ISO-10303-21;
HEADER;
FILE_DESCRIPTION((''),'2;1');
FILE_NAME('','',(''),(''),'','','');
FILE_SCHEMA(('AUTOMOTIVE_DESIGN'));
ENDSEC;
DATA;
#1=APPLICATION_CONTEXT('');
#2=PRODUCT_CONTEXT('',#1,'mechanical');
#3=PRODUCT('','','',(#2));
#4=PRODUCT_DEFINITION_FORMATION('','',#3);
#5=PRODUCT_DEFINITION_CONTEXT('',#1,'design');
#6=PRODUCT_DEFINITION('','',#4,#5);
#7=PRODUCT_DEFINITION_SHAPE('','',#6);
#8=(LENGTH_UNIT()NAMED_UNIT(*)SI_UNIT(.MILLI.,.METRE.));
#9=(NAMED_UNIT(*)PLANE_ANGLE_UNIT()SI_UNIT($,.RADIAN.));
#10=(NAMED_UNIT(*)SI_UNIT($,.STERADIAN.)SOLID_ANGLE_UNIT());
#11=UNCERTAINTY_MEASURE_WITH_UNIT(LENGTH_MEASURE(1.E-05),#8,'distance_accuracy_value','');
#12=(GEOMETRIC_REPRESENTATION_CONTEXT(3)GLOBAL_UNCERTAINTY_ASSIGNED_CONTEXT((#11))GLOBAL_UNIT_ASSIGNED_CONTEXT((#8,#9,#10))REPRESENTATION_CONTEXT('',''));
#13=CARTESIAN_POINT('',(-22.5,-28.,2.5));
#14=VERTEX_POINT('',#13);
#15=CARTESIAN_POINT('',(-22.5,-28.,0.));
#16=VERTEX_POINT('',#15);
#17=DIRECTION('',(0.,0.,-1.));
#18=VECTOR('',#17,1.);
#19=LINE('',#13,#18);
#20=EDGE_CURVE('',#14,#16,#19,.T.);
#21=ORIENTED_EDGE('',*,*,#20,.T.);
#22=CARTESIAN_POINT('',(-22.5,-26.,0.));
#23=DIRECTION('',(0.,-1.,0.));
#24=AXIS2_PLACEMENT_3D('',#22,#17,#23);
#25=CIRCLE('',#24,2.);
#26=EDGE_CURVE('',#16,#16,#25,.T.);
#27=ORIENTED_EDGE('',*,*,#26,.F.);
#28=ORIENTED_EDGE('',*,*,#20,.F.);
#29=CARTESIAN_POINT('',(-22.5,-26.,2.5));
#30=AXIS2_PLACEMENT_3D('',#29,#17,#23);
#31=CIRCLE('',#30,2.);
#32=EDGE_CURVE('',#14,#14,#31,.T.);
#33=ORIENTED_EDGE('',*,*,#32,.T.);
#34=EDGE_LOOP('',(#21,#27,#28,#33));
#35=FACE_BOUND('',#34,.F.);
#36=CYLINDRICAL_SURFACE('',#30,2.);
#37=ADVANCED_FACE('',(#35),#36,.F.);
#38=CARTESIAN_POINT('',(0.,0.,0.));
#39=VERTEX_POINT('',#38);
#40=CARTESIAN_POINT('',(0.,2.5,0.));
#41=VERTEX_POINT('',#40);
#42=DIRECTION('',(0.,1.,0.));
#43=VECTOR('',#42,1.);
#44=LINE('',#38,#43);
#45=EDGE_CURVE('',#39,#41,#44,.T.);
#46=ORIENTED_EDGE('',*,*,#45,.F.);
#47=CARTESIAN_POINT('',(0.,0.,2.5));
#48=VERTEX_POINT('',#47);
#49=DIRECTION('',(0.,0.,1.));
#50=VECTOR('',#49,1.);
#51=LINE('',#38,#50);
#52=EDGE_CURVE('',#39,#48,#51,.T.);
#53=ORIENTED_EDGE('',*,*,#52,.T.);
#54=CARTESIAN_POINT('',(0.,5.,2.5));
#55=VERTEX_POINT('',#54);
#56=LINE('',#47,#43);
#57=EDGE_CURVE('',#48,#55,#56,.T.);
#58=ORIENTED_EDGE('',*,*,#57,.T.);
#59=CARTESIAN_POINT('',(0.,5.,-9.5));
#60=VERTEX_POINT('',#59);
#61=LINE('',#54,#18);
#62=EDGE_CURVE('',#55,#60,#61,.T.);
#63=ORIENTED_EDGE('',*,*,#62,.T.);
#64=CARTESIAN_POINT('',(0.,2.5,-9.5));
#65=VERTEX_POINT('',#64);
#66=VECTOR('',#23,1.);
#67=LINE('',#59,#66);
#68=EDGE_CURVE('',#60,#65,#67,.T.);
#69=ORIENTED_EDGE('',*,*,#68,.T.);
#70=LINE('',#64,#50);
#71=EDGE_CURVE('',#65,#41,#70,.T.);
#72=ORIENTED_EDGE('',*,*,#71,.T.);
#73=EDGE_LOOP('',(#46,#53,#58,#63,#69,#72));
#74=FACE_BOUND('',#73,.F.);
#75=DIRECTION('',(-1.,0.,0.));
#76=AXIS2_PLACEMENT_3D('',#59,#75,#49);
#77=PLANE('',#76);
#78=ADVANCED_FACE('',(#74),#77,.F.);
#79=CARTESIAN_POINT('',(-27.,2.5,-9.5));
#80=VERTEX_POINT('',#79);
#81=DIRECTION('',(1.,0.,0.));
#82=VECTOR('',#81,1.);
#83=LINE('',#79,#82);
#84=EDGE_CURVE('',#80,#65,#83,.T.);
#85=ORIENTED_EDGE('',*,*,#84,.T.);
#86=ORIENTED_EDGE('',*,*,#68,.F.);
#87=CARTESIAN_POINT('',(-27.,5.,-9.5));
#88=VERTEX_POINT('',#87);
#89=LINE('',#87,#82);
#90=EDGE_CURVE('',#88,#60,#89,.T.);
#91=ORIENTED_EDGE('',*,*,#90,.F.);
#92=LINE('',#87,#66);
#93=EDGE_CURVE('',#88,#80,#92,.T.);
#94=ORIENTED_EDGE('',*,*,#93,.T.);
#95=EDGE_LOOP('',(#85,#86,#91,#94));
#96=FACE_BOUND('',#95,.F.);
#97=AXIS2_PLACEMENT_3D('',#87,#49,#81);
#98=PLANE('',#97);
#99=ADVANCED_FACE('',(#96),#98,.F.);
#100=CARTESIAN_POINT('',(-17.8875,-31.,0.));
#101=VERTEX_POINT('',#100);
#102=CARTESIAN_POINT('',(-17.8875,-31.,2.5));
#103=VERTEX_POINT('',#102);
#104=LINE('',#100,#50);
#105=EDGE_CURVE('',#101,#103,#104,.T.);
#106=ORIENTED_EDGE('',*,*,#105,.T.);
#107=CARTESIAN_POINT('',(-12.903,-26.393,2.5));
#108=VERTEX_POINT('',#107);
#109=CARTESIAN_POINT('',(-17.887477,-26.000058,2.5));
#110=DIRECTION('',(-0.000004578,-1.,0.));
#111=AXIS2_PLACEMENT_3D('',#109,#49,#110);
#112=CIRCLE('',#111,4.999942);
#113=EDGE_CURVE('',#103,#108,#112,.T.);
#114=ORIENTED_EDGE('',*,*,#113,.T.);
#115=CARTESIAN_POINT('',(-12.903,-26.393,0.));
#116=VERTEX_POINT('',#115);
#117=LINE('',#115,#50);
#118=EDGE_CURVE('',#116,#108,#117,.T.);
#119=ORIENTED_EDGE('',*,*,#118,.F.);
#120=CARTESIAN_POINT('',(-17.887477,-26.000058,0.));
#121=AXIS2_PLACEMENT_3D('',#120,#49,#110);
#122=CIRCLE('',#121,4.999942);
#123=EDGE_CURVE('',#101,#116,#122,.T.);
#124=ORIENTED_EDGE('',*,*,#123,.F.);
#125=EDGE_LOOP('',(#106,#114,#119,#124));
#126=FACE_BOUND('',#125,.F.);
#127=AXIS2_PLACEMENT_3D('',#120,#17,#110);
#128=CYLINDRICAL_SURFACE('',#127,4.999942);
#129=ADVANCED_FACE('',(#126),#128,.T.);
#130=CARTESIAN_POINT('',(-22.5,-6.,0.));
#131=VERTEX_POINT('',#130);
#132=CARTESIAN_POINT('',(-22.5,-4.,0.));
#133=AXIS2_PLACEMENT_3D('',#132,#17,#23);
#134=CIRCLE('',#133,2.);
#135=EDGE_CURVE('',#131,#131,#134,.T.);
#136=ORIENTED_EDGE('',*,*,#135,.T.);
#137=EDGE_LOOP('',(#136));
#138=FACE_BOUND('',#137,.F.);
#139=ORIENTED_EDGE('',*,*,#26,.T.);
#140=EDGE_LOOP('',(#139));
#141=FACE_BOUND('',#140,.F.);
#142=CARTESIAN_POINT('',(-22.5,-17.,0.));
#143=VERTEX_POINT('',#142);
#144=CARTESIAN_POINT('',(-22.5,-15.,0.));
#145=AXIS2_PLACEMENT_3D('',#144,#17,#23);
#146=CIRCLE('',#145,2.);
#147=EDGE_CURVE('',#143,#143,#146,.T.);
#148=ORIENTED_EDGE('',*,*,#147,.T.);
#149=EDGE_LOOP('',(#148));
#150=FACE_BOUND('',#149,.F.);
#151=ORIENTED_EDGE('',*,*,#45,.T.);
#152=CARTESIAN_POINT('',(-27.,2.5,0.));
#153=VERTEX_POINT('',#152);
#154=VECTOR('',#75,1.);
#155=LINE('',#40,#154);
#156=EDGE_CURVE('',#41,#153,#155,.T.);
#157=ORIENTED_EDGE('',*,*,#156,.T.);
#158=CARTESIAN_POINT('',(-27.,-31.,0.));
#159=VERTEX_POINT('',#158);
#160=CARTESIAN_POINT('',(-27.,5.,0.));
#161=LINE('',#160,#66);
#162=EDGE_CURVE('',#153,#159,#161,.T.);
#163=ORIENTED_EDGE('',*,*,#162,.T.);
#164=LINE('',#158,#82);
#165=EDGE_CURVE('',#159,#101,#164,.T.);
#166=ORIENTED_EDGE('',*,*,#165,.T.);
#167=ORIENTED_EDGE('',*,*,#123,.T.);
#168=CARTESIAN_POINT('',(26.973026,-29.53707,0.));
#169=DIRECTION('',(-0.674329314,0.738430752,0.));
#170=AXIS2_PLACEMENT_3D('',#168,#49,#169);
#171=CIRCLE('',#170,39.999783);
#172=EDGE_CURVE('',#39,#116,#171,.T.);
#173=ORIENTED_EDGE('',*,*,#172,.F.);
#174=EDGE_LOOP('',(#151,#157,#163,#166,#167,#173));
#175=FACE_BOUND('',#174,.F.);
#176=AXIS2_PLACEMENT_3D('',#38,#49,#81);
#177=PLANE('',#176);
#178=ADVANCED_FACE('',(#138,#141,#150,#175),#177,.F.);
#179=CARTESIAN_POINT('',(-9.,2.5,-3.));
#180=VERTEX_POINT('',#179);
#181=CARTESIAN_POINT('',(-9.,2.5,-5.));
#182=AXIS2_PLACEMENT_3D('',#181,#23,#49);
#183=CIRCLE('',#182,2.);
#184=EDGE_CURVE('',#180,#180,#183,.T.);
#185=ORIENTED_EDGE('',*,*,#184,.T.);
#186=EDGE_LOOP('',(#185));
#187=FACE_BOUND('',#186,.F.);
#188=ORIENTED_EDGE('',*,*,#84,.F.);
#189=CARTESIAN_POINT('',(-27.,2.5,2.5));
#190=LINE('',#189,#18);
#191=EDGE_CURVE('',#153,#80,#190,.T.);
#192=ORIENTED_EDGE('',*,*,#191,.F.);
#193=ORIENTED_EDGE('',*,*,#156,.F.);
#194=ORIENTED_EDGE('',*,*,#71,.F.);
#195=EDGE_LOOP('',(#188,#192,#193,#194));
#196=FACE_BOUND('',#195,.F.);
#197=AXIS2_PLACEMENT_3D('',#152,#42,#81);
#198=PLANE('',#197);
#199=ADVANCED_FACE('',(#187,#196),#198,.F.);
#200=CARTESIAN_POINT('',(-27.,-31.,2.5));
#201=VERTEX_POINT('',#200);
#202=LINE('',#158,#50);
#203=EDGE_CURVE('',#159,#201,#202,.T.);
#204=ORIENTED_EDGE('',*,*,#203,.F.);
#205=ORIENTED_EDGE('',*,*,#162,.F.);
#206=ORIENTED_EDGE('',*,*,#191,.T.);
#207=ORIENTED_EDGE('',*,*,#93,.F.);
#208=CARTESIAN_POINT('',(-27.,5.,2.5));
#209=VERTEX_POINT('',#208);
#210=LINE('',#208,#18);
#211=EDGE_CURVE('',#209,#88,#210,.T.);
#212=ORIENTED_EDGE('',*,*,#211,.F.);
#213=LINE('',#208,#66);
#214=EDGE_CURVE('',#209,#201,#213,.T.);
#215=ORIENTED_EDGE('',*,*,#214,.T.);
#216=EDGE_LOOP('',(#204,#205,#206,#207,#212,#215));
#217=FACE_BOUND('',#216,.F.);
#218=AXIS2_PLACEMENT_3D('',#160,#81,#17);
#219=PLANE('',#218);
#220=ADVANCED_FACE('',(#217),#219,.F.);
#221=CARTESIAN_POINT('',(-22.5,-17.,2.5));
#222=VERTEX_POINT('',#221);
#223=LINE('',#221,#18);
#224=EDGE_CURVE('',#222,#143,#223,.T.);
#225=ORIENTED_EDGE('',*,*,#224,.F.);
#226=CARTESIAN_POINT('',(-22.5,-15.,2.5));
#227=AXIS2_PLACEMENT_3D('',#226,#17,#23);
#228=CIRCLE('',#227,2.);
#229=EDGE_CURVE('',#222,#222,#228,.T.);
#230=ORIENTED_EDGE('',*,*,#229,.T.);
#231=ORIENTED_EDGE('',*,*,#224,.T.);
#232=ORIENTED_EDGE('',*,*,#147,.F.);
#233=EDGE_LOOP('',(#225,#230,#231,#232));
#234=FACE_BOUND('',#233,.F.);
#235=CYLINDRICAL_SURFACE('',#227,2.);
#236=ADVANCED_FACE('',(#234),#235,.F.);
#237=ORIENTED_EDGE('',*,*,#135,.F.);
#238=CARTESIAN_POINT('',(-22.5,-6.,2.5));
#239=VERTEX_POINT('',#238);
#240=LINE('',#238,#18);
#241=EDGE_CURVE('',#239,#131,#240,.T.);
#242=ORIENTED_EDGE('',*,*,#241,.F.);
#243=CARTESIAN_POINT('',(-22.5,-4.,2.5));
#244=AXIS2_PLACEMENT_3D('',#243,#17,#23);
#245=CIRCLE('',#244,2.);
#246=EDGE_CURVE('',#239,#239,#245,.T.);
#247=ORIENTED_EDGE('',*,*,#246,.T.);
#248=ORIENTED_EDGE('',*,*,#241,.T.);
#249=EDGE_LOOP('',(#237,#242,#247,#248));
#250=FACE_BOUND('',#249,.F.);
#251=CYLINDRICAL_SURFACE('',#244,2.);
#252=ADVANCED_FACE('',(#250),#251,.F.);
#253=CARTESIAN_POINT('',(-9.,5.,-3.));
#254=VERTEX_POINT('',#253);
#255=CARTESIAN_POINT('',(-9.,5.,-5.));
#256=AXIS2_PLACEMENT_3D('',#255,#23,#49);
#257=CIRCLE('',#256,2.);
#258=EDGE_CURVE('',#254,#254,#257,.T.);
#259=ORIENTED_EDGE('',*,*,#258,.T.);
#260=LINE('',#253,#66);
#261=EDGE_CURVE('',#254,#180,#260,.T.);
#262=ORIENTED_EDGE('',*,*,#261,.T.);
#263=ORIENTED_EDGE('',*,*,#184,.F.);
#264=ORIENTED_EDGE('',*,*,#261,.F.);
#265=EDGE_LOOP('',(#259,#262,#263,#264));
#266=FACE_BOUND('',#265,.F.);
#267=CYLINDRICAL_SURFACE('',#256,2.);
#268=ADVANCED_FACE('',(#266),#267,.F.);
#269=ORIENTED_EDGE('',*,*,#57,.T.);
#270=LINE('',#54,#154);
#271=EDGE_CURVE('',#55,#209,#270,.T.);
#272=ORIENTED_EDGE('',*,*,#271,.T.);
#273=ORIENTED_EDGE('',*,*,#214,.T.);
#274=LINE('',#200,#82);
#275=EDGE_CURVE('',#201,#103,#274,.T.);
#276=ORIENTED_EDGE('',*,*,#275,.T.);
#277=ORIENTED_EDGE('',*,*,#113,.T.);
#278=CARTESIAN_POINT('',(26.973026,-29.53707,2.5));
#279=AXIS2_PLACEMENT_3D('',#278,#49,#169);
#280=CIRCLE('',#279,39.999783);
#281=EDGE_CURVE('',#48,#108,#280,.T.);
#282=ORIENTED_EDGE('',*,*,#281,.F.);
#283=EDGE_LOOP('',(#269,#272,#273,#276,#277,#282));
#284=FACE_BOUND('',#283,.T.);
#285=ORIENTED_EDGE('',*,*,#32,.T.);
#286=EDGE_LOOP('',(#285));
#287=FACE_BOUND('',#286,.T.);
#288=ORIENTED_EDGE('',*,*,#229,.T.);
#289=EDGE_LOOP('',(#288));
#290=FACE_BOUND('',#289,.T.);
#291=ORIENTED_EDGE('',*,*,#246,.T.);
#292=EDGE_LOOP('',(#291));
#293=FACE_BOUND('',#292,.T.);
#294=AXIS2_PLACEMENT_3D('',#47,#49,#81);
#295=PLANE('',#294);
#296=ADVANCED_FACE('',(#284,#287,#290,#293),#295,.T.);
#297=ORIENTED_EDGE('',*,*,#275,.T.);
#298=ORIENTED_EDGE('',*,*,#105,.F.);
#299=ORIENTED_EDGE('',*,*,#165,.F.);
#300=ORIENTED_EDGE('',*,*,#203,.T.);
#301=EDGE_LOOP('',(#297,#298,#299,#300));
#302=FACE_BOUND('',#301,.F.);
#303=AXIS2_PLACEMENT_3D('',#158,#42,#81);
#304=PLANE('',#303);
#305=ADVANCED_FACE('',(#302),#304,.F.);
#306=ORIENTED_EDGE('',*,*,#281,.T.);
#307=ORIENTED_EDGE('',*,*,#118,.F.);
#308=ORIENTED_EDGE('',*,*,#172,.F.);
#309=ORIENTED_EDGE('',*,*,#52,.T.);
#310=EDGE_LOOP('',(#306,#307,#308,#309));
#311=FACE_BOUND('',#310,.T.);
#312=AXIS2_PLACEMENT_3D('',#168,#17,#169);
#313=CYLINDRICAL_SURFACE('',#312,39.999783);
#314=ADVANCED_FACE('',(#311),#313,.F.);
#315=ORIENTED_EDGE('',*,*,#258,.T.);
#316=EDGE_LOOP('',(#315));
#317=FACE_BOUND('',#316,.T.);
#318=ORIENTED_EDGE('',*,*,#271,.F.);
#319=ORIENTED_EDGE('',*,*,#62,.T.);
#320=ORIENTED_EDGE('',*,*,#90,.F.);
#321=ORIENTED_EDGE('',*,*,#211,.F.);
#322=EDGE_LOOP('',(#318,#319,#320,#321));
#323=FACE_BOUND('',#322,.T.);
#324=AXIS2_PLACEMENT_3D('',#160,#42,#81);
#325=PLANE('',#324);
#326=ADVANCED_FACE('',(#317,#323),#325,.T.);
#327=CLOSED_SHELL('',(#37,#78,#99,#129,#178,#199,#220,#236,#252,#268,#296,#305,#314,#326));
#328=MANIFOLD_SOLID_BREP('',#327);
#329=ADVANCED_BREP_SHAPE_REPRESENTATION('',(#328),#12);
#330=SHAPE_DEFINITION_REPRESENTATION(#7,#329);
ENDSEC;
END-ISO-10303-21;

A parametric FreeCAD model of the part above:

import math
import FreeCAD as App
import Part
import Sketcher
Q = App.Units.Quantity


def add_polygon(sketch, points):
    """Adds a closed chain of lines whose ends are joined by coincident constraints."""
    first, n = sketch.GeometryCount, len(points)
    for a, b in zip(points, points[1:] + points[:1]):
        sketch.addGeometry(Part.LineSegment(App.Vector(*a, 0), App.Vector(*b, 0)), False)
    for i in range(n):
        sketch.addConstraint(Sketcher.Constraint("Coincident", first + i, 2, first + (i + 1) % n, 1))

doc = App.newDocument("Part")
params = doc.addObject("Spreadsheet::Sheet", "Params")
for row, (alias, value) in enumerate([
    ("sketch1_radius", "40 mm"),
    ("sketch1_radius2", "5 mm"),
    ("sketch1_width", "27 mm"),
    ("sketch1_height", "5 mm"),
    ("sketch1_height2", "36 mm"),
    ("pad1_length", "2.5 mm"),
    ("sketch2_diameter", "4 mm"),
    ("hole_diameter", "4 mm"),
    ("sketch3_diameter", "4 mm"),
    ("hole2_diameter", "4 mm"),
    ("sketch4_width", "27 mm"),
    ("sketch4_height", "9.5 mm"),
    ("pad2_length", "2.5 mm"),
    ("sketch5_diameter", "4 mm"),
    ("hole3_diameter", "4 mm"),
], start=1):
    params.set(f"A{row}", alias)
    params.set(f"B{row}", "=" + value)
    params.setAlias(f"B{row}", alias)

body = doc.addObject("PartDesign::Body", "Body")

# Sketch on XY plane
sketch1 = body.newObject("Sketcher::SketchObject", "Sketch")
sketch1.AttachmentSupport = (doc.getObject("XY_Plane"), [""])
sketch1.MapMode = "FlatFace"
sketch1.addGeometry([
    Part.ArcOfCircle(Part.Circle(App.Vector(26.9732, -29.5372, 0), App.Vector(0, 0, 1), 39.999996), math.radians(132.402147), math.radians(175.491611)),  # 0
    Part.LineSegment(App.Vector(0, 0, 0), App.Vector(0, 5, 0)),  # 1
    Part.LineSegment(App.Vector(0, 5, 0), App.Vector(-27, 5, 0)),  # 2
    Part.LineSegment(App.Vector(-27, 5, 0), App.Vector(-27, -31, 0)),  # 3
    Part.LineSegment(App.Vector(-27, -31, 0), App.Vector(-17.8875, -31, 0)),  # 4
    Part.ArcOfCircle(Part.Circle(App.Vector(-17.8875, -26, 0), App.Vector(0, 0, 1), 5), math.radians(-90), math.radians(-4.508126)),  # 5
], False)
sketch1.addConstraint([
    Sketcher.Constraint("Coincident", 0, 1, 1, 1),
    Sketcher.Constraint("Coincident", 1, 2, 2, 1),
    Sketcher.Constraint("Coincident", 2, 2, 3, 1),
    Sketcher.Constraint("Coincident", 3, 2, 4, 1),
    Sketcher.Constraint("Tangent", 4, 2, 5, 1),
    Sketcher.Constraint("Tangent", 5, 2, 0, 2),
    Sketcher.Constraint("Vertical", 1),
    Sketcher.Constraint("Horizontal", 2),
    Sketcher.Constraint("Vertical", 3),
    Sketcher.Constraint("Horizontal", 4),
    Sketcher.Constraint("Coincident", 0, 1, -1, 1),
    Sketcher.Constraint("Radius", 0, Q("40 mm")),
    Sketcher.Constraint("Radius", 5, Q("5 mm")),
    Sketcher.Constraint("DistanceX", 2, 2, 2, 1, Q("27 mm")),
    Sketcher.Constraint("DistanceY", 1, 1, 1, 2, Q("5 mm")),
    Sketcher.Constraint("DistanceY", 3, 2, 3, 1, Q("36 mm")),
    Sketcher.Constraint("DistanceX", 4, 1, 4, 2, Q("9.1125 mm")),
])
sketch1.setExpression("Constraints[11]", "Params.sketch1_radius")
sketch1.setExpression("Constraints[12]", "Params.sketch1_radius2")
sketch1.setExpression("Constraints[13]", "Params.sketch1_width")
sketch1.setExpression("Constraints[14]", "Params.sketch1_height")
sketch1.setExpression("Constraints[15]", "Params.sketch1_height2")
pad1 = body.newObject("PartDesign::Pad", "Pad")
pad1.Profile = sketch1
pad1.setExpression("Length", "Params.pad1_length")

# Sketch on XZ plane
sketch2 = body.newObject("Sketcher::SketchObject", "Sketch001")
sketch2.AttachmentSupport = (doc.getObject("XZ_Plane"), [""])
sketch2.MapMode = "FlatFace"
sketch2.AttachmentOffset = App.Placement(App.Vector(0, 0, -5), App.Rotation())
sketch2.addGeometry(Part.Circle(App.Vector(-9, 7.5, 0), App.Vector(0, 0, 1), 2), False)
sketch2.addConstraint([
    Sketcher.Constraint("Diameter", 0, Q("4 mm")),
    Sketcher.Constraint("DistanceX", 0, 3, -1, 1, Q("9 mm")),
    Sketcher.Constraint("DistanceY", -1, 1, 0, 3, Q("7.5 mm")),
])
sketch2.setExpression("Constraints[0]", "Params.sketch2_diameter")
doc.recompute()
hole = body.newObject("PartDesign::Hole", "Hole")
hole.Profile = sketch2
hole.ThreadType = "None"
hole.setExpression("Diameter", "Params.hole_diameter")
hole.DepthType = "ThroughAll"
hole.Reversed = True

# Sketch on XY plane
sketch3 = body.newObject("Sketcher::SketchObject", "Sketch002")
sketch3.AttachmentSupport = (doc.getObject("XY_Plane"), [""])
sketch3.MapMode = "FlatFace"
sketch3.AttachmentOffset = App.Placement(App.Vector(0, 0, 2.5), App.Rotation())
sketch3.addGeometry([
    Part.Circle(App.Vector(-22.5, -4, 0), App.Vector(0, 0, 1), 2),
    Part.Circle(App.Vector(-22.5, -15, 0), App.Vector(0, 0, 1), 2),
    Part.Circle(App.Vector(-22.5, -26, 0), App.Vector(0, 0, 1), 2),
], False)
sketch3.addConstraint([
    Sketcher.Constraint("Equal", 0, 1),
    Sketcher.Constraint("Equal", 1, 2),
    Sketcher.Constraint("Vertical", 0, 3, 1, 3),
    Sketcher.Constraint("Vertical", 1, 3, 2, 3),
    Sketcher.Constraint("Diameter", 0, Q("4 mm")),
    Sketcher.Constraint("DistanceY", 0, 3, -1, 1, Q("4 mm")),
    Sketcher.Constraint("DistanceY", 1, 3, -1, 1, Q("15 mm")),
    Sketcher.Constraint("DistanceY", 2, 3, -1, 1, Q("26 mm")),
    Sketcher.Constraint("DistanceX", 0, 3, -1, 1, Q("22.5 mm")),
])
sketch3.setExpression("Constraints[4]", "Params.sketch3_diameter")
doc.recompute()
hole2 = body.newObject("PartDesign::Hole", "Hole001")
hole2.Profile = sketch3
hole2.ThreadType = "None"
hole2.setExpression("Diameter", "Params.hole2_diameter")
hole2.DepthType = "ThroughAll"

# Sketch on XZ plane
sketch4 = body.newObject("Sketcher::SketchObject", "Sketch003")
sketch4.AttachmentSupport = (doc.getObject("XZ_Plane"), [""])
sketch4.MapMode = "FlatFace"
sketch4.AttachmentOffset = App.Placement(App.Vector(0, 0, -5), App.Rotation())
add_polygon(sketch4, [(-27, 0), (0, 0), (0, -9.5), (-27, -9.5)])  # lines 0-3
sketch4.addConstraint([
    Sketcher.Constraint("Horizontal", 0),
    Sketcher.Constraint("Vertical", 1),
    Sketcher.Constraint("Horizontal", 2),
    Sketcher.Constraint("Vertical", 3),
    Sketcher.Constraint("Coincident", 0, 2, -1, 1),
    Sketcher.Constraint("DistanceX", 0, 1, 0, 2, Q("27 mm")),
    Sketcher.Constraint("DistanceY", 1, 2, 1, 1, Q("9.5 mm")),
])
sketch4.setExpression("Constraints[9]", "Params.sketch4_width")
sketch4.setExpression("Constraints[10]", "Params.sketch4_height")
pad2 = body.newObject("PartDesign::Pad", "Pad001")
pad2.Profile = sketch4
pad2.setExpression("Length", "Params.pad2_length")

# Sketch on XZ plane
sketch5 = body.newObject("Sketcher::SketchObject", "Sketch004")
sketch5.AttachmentSupport = (doc.getObject("XZ_Plane"), [""])
sketch5.MapMode = "FlatFace"
sketch5.AttachmentOffset = App.Placement(App.Vector(0, 0, -5), App.Rotation())
sketch5.addGeometry(Part.Circle(App.Vector(-9, -5, 0), App.Vector(0, 0, 1), 2), False)
sketch5.addConstraint([
    Sketcher.Constraint("Diameter", 0, Q("4 mm")),
    Sketcher.Constraint("DistanceX", 0, 3, -1, 1, Q("9 mm")),
    Sketcher.Constraint("DistanceY", 0, 3, -1, 1, Q("5 mm")),
])
sketch5.setExpression("Constraints[0]", "Params.sketch5_diameter")
doc.recompute()
hole3 = body.newObject("PartDesign::Hole", "Hole002")
hole3.Profile = sketch5
hole3.ThreadType = "None"
hole3.setExpression("Diameter", "Params.hole3_diameter")
hole3.DepthType = "ThroughAll"
hole3.Reversed = True

doc.recompute()
